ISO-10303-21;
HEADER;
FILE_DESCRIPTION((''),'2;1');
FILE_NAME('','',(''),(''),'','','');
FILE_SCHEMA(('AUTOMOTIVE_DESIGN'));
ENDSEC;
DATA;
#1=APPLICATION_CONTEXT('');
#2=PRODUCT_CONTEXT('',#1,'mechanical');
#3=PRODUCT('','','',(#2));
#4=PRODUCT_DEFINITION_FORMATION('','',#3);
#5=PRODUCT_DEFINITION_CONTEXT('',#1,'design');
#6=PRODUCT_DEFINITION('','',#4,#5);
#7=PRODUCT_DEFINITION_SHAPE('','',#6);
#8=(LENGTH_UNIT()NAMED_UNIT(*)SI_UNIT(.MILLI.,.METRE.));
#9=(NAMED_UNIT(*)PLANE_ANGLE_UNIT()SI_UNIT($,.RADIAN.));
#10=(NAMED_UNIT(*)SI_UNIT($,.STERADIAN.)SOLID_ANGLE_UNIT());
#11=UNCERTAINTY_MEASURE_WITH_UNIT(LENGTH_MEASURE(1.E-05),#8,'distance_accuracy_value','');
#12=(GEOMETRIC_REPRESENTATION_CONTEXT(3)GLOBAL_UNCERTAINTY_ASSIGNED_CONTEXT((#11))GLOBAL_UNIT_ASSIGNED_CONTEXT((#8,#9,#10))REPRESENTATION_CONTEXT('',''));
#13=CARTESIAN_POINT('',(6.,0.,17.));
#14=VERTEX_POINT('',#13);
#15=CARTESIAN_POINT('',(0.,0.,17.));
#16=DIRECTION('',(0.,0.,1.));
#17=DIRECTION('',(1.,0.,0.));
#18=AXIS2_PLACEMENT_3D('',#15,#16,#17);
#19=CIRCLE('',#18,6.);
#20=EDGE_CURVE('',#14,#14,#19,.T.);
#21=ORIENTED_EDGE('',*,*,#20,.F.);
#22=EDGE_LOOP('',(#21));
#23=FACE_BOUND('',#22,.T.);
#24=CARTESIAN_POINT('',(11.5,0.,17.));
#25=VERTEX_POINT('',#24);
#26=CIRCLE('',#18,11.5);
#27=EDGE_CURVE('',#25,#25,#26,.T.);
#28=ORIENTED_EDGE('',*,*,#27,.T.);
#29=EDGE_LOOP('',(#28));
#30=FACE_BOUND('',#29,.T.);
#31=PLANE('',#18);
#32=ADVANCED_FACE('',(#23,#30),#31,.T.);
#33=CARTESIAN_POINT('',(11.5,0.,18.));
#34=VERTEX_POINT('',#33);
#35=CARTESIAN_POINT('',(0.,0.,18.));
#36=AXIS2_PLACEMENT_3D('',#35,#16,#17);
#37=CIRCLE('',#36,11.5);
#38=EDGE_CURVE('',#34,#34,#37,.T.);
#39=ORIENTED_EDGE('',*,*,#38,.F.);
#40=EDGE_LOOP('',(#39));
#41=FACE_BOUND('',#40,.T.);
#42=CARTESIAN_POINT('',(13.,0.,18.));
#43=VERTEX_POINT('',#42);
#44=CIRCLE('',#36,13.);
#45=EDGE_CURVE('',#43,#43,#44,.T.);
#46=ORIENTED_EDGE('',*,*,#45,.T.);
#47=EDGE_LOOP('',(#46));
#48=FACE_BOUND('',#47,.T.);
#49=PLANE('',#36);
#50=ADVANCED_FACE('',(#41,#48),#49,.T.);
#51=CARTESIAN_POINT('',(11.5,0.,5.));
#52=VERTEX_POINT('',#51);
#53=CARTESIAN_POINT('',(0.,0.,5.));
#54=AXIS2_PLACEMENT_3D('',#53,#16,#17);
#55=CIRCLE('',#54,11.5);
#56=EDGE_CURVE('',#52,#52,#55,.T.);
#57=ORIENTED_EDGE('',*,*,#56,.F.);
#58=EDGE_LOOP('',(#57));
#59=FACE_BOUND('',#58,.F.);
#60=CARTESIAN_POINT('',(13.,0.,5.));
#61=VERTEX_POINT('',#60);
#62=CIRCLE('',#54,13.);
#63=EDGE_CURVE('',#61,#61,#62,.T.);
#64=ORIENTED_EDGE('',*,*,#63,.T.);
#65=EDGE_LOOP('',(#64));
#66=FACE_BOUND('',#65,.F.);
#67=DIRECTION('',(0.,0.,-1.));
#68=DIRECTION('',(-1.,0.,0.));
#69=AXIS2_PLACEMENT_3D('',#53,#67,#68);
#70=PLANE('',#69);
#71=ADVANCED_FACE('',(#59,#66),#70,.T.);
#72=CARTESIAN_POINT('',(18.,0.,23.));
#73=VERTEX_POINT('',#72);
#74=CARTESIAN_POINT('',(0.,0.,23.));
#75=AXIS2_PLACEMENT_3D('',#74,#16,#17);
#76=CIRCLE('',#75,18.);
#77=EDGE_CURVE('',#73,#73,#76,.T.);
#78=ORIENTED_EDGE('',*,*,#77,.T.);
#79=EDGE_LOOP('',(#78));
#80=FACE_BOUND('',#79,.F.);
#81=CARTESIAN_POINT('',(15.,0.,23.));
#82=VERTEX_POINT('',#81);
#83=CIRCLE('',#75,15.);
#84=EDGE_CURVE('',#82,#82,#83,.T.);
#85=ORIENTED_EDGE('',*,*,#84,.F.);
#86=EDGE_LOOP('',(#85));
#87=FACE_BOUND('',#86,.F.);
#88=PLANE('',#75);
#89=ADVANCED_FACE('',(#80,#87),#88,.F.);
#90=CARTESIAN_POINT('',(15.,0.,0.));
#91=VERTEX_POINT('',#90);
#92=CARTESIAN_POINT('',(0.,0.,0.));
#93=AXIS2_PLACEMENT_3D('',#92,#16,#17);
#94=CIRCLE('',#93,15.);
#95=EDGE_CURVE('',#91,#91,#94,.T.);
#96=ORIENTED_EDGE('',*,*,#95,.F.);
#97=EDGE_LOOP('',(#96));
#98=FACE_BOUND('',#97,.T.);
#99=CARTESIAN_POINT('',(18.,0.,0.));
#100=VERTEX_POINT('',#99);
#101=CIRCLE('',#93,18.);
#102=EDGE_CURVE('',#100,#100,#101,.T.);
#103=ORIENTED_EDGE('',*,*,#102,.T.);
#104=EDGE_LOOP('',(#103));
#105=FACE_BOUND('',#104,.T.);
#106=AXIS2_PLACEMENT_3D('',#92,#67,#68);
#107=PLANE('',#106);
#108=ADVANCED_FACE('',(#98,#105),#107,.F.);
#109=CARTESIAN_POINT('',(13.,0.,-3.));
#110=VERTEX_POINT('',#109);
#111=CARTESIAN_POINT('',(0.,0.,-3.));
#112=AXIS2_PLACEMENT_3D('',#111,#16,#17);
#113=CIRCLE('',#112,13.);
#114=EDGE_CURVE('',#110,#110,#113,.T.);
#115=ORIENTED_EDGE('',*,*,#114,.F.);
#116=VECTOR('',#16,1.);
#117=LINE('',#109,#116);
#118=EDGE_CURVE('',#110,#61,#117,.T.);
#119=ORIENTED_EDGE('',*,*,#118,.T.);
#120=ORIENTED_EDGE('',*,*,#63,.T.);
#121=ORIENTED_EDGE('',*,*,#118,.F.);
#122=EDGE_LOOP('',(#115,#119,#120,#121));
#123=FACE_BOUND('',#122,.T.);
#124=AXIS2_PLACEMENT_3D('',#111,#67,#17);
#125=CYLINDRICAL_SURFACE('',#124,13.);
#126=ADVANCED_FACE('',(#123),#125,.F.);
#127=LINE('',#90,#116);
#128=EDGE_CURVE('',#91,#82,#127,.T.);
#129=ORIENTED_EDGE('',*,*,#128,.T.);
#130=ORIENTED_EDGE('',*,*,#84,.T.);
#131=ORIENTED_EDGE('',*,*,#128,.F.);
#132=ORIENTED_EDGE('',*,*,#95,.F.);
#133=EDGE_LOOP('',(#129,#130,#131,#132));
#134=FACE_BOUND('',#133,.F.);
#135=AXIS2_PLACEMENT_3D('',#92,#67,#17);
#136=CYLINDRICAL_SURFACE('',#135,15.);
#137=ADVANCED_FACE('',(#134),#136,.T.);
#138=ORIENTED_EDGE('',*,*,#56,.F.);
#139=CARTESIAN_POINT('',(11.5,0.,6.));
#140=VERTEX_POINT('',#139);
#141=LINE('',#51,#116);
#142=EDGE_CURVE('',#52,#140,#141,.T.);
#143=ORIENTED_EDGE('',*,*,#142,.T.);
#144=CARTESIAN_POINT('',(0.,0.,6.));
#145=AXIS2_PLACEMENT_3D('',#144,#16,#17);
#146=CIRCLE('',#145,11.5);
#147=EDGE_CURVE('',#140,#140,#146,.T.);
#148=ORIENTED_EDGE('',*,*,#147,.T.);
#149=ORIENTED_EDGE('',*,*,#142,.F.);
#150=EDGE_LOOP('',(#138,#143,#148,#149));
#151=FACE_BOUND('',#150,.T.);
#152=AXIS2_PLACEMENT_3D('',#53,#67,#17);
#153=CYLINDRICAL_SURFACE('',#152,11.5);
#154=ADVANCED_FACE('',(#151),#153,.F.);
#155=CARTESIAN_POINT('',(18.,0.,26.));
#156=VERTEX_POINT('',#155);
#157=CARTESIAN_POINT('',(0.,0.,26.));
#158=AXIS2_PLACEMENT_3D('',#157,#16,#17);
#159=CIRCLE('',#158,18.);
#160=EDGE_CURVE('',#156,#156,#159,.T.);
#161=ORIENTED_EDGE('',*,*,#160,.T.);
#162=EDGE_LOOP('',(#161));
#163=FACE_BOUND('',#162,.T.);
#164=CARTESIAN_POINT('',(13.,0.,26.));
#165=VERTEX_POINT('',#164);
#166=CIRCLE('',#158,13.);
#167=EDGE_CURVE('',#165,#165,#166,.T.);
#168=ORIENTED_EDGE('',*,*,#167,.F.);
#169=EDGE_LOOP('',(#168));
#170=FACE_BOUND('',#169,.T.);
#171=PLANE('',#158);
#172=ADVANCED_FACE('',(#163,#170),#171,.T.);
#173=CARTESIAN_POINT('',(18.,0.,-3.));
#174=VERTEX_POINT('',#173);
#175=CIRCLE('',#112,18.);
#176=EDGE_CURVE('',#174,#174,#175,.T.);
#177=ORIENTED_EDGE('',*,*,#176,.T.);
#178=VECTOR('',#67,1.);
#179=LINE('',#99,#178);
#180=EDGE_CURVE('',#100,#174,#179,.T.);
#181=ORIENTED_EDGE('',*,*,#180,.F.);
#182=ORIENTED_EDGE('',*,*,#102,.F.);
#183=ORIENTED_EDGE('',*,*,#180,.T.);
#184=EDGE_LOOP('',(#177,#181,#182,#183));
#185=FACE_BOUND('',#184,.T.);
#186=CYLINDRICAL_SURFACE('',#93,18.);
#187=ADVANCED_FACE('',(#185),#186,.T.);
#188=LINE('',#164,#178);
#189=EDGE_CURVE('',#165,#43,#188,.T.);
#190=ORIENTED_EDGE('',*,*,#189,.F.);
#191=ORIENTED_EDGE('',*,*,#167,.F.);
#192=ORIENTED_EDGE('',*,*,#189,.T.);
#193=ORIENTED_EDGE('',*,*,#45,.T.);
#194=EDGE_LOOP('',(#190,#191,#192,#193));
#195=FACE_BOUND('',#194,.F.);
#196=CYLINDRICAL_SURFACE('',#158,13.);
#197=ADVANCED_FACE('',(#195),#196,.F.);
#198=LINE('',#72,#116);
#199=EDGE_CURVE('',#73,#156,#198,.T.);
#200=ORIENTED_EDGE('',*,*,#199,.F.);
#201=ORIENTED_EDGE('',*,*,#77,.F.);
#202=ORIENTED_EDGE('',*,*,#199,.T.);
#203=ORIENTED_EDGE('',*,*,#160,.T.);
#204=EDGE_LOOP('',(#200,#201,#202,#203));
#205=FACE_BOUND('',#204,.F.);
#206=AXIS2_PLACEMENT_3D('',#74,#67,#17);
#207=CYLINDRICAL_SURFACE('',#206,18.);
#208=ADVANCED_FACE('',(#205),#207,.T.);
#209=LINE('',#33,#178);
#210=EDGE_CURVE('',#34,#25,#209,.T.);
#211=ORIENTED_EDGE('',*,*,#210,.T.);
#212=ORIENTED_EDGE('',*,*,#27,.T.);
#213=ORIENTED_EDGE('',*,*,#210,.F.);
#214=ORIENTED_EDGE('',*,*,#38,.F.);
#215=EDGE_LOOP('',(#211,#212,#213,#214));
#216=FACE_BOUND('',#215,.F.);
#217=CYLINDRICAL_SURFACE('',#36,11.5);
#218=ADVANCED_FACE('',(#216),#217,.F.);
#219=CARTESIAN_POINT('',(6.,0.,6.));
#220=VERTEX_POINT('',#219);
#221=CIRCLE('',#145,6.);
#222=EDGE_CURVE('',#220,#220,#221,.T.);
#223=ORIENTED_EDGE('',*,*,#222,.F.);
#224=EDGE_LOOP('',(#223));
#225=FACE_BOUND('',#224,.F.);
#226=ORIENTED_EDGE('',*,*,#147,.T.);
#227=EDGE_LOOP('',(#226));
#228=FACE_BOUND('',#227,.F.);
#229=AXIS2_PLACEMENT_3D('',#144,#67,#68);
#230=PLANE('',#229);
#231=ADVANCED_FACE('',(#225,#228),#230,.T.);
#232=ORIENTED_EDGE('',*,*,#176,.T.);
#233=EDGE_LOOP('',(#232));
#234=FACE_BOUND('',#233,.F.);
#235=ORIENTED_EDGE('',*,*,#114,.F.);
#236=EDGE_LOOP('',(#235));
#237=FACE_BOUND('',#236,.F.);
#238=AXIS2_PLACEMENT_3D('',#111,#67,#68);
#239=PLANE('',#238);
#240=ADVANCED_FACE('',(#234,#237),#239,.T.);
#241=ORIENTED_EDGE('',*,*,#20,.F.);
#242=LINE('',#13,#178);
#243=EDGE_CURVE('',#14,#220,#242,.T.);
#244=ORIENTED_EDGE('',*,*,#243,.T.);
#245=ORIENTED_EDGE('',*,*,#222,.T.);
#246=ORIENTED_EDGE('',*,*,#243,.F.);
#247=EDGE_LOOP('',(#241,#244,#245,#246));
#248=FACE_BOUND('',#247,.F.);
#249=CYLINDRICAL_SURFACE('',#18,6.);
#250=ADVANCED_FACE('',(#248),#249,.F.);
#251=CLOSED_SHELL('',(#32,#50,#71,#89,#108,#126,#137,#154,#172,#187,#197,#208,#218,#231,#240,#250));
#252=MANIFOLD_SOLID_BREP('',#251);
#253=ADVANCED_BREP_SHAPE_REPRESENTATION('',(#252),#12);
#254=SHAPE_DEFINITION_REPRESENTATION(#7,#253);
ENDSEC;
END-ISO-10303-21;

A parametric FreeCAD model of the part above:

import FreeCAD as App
import Part
import Sketcher

doc = App.newDocument("Part")
body = doc.addObject("PartDesign::Body", "Body")

# Sketch on XY plane
sketch1 = doc.addObject("Sketcher::SketchObject", "Sketch")
body.addObject(sketch1)
sketch1.AttachmentSupport = (doc.XY_Plane, [""])
sketch1.MapMode = "FlatFace"
sketch1.addGeometry(Part.Circle(App.Vector(0, 0, 0), App.Vector(0, 0, 1), 15), False)
sketch1.addConstraint([
    Sketcher.Constraint("Coincident", 0, 3, -1, 1),
    Sketcher.Constraint("Diameter", 0, 30.0),
])
pad1 = doc.addObject("PartDesign::Pad", "Pad")
body.addObject(pad1)
pad1.Profile = sketch1
pad1.Length = 23

# Sketch on XY plane
sketch2 = doc.addObject("Sketcher::SketchObject", "Sketch001")
body.addObject(sketch2)
sketch2.AttachmentSupport = (doc.XY_Plane, [""])
sketch2.MapMode = "FlatFace"
sketch2.AttachmentOffset = App.Placement(App.Vector(0, 0, 23), App.Rotation())
sketch2.addGeometry(Part.Circle(App.Vector(0, 0, 0), App.Vector(0, 0, 1), 18), False)
sketch2.addConstraint([
    Sketcher.Constraint("Coincident", 0, 3, -1, 1),
    Sketcher.Constraint("Diameter", 0, 36.0),
])
pad2 = doc.addObject("PartDesign::Pad", "Pad001")
body.addObject(pad2)
pad2.Profile = sketch2
pad2.Length = 3
doc.recompute()

datumplane = doc.addObject("PartDesign::Plane", "DatumPlane")
body.addObject(datumplane)
datumplane.AttachmentSupport = (doc.XY_Plane, [""])
datumplane.MapMode = "FlatFace"
datumplane.AttachmentOffset = App.Placement(App.Vector(0, 0, 11.5), App.Rotation())
mirrored = doc.addObject("PartDesign::Mirrored", "Mirrored")
body.addObject(mirrored)
mirrored.Originals = [pad2]
mirrored.MirrorPlane = (datumplane, [""])
body.Tip = mirrored

# Sketch on XY plane
sketch3 = doc.addObject("Sketcher::SketchObject", "Sketch002")
body.addObject(sketch3)
sketch3.AttachmentSupport = (doc.XY_Plane, [""])
sketch3.MapMode = "FlatFace"
sketch3.AttachmentOffset = App.Placement(App.Vector(0, 0, 26), App.Rotation())
sketch3.addGeometry(Part.Circle(App.Vector(0, 0, 0), App.Vector(0, 0, 1), 13), False)
sketch3.addConstraint([
    Sketcher.Constraint("Coincident", 0, 3, -1, 1),
    Sketcher.Constraint("Diameter", 0, 26.0),
])
pocket1 = doc.addObject("PartDesign::Pocket", "Pocket")
body.addObject(pocket1)
pocket1.Profile = sketch3
pocket1.Length = 8

# Sketch on XY plane
sketch4 = doc.addObject("Sketcher::SketchObject", "Sketch003")
body.addObject(sketch4)
sketch4.AttachmentSupport = (doc.XY_Plane, [""])
sketch4.MapMode = "FlatFace"
sketch4.AttachmentOffset = App.Placement(App.Vector(0, 0, 18), App.Rotation())
sketch4.addGeometry(Part.Circle(App.Vector(0, 0, 0), App.Vector(0, 0, 1), 12), False)
sketch4.addConstraint([
    Sketcher.Constraint("Coincident", 0, 3, -1, 1),
    Sketcher.Constraint("Diameter", 0, 23.0),
])
pocket2 = doc.addObject("PartDesign::Pocket", "Pocket001")
body.addObject(pocket2)
pocket2.Profile = sketch4
pocket2.Length = 1
doc.recompute()

datumplane2 = doc.addObject("PartDesign::Plane", "DatumPlane001")
body.addObject(datumplane2)
datumplane2.AttachmentSupport = (doc.XY_Plane, [""])
datumplane2.MapMode = "FlatFace"
datumplane2.AttachmentOffset = App.Placement(App.Vector(0, 0, 11.5), App.Rotation())
mirrored2 = doc.addObject("PartDesign::Mirrored", "Mirrored001")
body.addObject(mirrored2)
mirrored2.Originals = [pocket2, pocket1]
mirrored2.MirrorPlane = (datumplane2, [""])
body.Tip = mirrored2

# Sketch on XY plane
sketch5 = doc.addObject("Sketcher::SketchObject", "Sketch004")
body.addObject(sketch5)
sketch5.AttachmentSupport = (doc.XY_Plane, [""])
sketch5.MapMode = "FlatFace"
sketch5.AttachmentOffset = App.Placement(App.Vector(0, 0, 17), App.Rotation())
sketch5.addGeometry(Part.Circle(App.Vector(0, 0, 0), App.Vector(0, 0, 1), 6), False)
sketch5.addConstraint([
    Sketcher.Constraint("Coincident", 0, 3, -1, 1),
    Sketcher.Constraint("Diameter", 0, 12.0),
])
pocket3 = doc.addObject("PartDesign::Pocket", "Pocket002")
body.addObject(pocket3)
pocket3.Profile = sketch5
pocket3.Type = "ThroughAll"

doc.recompute()
